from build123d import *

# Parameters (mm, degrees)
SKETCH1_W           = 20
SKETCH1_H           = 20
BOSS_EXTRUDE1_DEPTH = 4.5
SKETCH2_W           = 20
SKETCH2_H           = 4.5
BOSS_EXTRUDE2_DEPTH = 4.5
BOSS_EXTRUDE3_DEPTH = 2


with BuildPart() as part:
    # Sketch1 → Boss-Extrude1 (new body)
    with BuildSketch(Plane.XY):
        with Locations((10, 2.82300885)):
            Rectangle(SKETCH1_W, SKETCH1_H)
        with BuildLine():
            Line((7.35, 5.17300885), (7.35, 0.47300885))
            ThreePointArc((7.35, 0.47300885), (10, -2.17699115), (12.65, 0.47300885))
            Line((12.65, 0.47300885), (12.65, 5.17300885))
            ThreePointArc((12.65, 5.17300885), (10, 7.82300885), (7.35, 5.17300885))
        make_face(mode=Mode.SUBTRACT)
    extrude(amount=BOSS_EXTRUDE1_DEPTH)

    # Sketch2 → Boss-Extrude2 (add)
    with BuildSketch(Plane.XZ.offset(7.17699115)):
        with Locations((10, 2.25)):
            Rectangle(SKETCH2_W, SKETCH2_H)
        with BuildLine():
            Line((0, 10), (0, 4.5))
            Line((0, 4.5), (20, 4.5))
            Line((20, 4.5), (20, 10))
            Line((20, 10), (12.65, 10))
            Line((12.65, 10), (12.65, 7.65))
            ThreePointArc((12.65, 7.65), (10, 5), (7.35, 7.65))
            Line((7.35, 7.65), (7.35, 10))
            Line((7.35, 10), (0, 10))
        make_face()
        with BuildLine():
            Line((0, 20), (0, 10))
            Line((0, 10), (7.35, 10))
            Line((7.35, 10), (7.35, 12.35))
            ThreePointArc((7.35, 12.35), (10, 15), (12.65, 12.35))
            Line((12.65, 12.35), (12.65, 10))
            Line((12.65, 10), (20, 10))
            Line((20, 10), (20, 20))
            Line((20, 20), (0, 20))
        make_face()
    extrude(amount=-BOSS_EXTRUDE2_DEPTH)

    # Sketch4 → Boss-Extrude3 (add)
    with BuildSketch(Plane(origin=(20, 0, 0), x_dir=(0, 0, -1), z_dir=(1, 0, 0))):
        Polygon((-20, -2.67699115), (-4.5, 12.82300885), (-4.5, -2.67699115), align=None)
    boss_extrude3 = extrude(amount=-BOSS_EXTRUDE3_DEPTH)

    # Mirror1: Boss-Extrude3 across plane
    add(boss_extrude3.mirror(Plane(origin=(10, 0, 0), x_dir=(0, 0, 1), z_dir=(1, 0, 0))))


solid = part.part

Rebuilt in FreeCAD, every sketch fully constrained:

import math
import FreeCAD as App
import Part
import Sketcher

V = App.Vector
Q = App.Units.Quantity

doc = App.newDocument("Part")
body = doc.addObject("PartDesign::Body", "Body")

# Sketch on XY plane
sketch1 = body.newObject("Sketcher::SketchObject", "Sketch")
sketch1.AttachmentSupport = (doc.getObject("XY_Plane"), [""])
sketch1.MapMode = "FlatFace"
sketch1.addGeometry(Part.LineSegment(V(0, 12.8, 0), V(0, -7.2, 0)), False)
sketch1.addGeometry(Part.LineSegment(V(0, -7.2, 0), V(20, -7.2, 0)), False)
sketch1.addGeometry(Part.LineSegment(V(20, -7.2, 0), V(20, 12.8, 0)), False)
sketch1.addGeometry(Part.LineSegment(V(20, 12.8, 0), V(0, 12.8, 0)), False)
sketch1.addGeometry(Part.LineSegment(V(7.3, 0.5, 0), V(7.3, 5.2, 0)), False)
sketch1.addGeometry(Part.ArcOfCircle(Part.Circle(V(10, 5.2, 0), V(0, 0, 1), 2.6), math.radians(0), math.radians(180)), False)
sketch1.addGeometry(Part.LineSegment(V(12.7, 5.2, 0), V(12.7, 0.5, 0)), False)
sketch1.addGeometry(Part.ArcOfCircle(Part.Circle(V(10, 0.5, 0), V(0, 0, 1), 2.6), math.radians(180), math.radians(360)), False)
sketch1.addConstraint(Sketcher.Constraint("Coincident", 0, 2, 1, 1))
sketch1.addConstraint(Sketcher.Constraint("Coincident", 1, 2, 2, 1))
sketch1.addConstraint(Sketcher.Constraint("Coincident", 2, 2, 3, 1))
sketch1.addConstraint(Sketcher.Constraint("Coincident", 3, 2, 0, 1))
sketch1.addConstraint(Sketcher.Constraint("Tangent", 4, 2, 5, 2))
sketch1.addConstraint(Sketcher.Constraint("Tangent", 5, 1, 6, 1))
sketch1.addConstraint(Sketcher.Constraint("Tangent", 6, 2, 7, 2))
sketch1.addConstraint(Sketcher.Constraint("Tangent", 7, 1, 4, 1))
sketch1.addConstraint(Sketcher.Constraint("Vertical", 0))
sketch1.addConstraint(Sketcher.Constraint("Horizontal", 1))
sketch1.addConstraint(Sketcher.Constraint("Vertical", 2))
sketch1.addConstraint(Sketcher.Constraint("Horizontal", 3))
sketch1.addConstraint(Sketcher.Constraint("Vertical", 4))
sketch1.addConstraint(Sketcher.Constraint("Vertical", 6))
sketch1.addConstraint(Sketcher.Constraint("PointOnObject", 0, 2, -2))
sketch1.addConstraint(Sketcher.Constraint("Equal", 3, 0))
sketch1.addConstraint(Sketcher.Constraint("DistanceX", 1, 1, 1, 2, Q("20 mm")))
sketch1.addConstraint(Sketcher.Constraint("Radius", 5, Q("2.65 mm")))
sketch1.addConstraint(Sketcher.Constraint("DistanceY", 4, 1, 4, 2, Q("4.7 mm")))
sketch1.addConstraint(Sketcher.Constraint("DistanceX", -1, 1, 5, 3, Q("10 mm")))
sketch1.addConstraint(Sketcher.Constraint("DistanceY", 0, 2, 7, 3, Q("7.65 mm")))
sketch1.addConstraint(Sketcher.Constraint("DistanceY", -1, 1, 5, 3, Q("5.173009 mm")))
pad1 = body.newObject("PartDesign::Pad", "Pad")
pad1.Profile = sketch1
pad1.Length = 4.5

# Sketch on XZ plane
sketch2 = body.newObject("Sketcher::SketchObject", "Sketch001")
sketch2.AttachmentSupport = (doc.getObject("XZ_Plane"), [""])
sketch2.MapMode = "FlatFace"
sketch2.AttachmentOffset = App.Placement(V(0, 0, 7.176991), App.Rotation())
sketch2.addGeometry(Part.LineSegment(V(0, 0, 0), V(20, 0, 0)), False)
sketch2.addGeometry(Part.LineSegment(V(20, 0, 0), V(20, 20, 0)), False)
sketch2.addGeometry(Part.LineSegment(V(20, 20, 0), V(0, 20, 0)), False)
sketch2.addGeometry(Part.LineSegment(V(0, 20, 0), V(0, 0, 0)), False)
sketch2.addGeometry(Part.ArcOfCircle(Part.Circle(V(10, 12.3, 0), V(0, 0, 1), 2.6), math.radians(0), math.radians(180)), False)
sketch2.addGeometry(Part.LineSegment(V(12.7, 12.3, 0), V(12.7, 7.7, 0)), False)
sketch2.addGeometry(Part.ArcOfCircle(Part.Circle(V(10, 7.7, 0), V(0, 0, 1), 2.6), math.radians(180), math.radians(360)), False)
sketch2.addGeometry(Part.LineSegment(V(7.3, 7.7, 0), V(7.3, 12.3, 0)), False)
sketch2.addConstraint(Sketcher.Constraint("Coincident", 0, 2, 1, 1))
sketch2.addConstraint(Sketcher.Constraint("Coincident", 1, 2, 2, 1))
sketch2.addConstraint(Sketcher.Constraint("Coincident", 2, 2, 3, 1))
sketch2.addConstraint(Sketcher.Constraint("Coincident", 3, 2, 0, 1))
sketch2.addConstraint(Sketcher.Constraint("Tangent", 4, 1, 5, 1))
sketch2.addConstraint(Sketcher.Constraint("Tangent", 5, 2, 6, 2))
sketch2.addConstraint(Sketcher.Constraint("Tangent", 6, 1, 7, 1))
sketch2.addConstraint(Sketcher.Constraint("Tangent", 7, 2, 4, 2))
sketch2.addConstraint(Sketcher.Constraint("Horizontal", 0))
sketch2.addConstraint(Sketcher.Constraint("Vertical", 1))
sketch2.addConstraint(Sketcher.Constraint("Horizontal", 2))
sketch2.addConstraint(Sketcher.Constraint("Vertical", 3))
sketch2.addConstraint(Sketcher.Constraint("Vertical", 5))
sketch2.addConstraint(Sketcher.Constraint("Vertical", 7))
sketch2.addConstraint(Sketcher.Constraint("Coincident", 3, 2, -1, 1))
sketch2.addConstraint(Sketcher.Constraint("Equal", 2, 1))
sketch2.addConstraint(Sketcher.Constraint("DistanceX", 0, 1, 0, 2, Q("20 mm")))
sketch2.addConstraint(Sketcher.Constraint("Radius", 4, Q("2.65 mm")))
sketch2.addConstraint(Sketcher.Constraint("DistanceY", 5, 2, 5, 1, Q("4.7 mm")))
sketch2.addConstraint(Sketcher.Constraint("DistanceX", -1, 1, 4, 3, Q("10 mm")))
sketch2.addConstraint(Sketcher.Constraint("DistanceY", -1, 1, 4, 3, Q("12.35 mm")))
pad2 = body.newObject("PartDesign::Pad", "Pad001")
pad2.Profile = sketch2
pad2.Length = 4.5
pad2.Reversed = True

# Sketch on YZ plane
sketch3 = body.newObject("Sketcher::SketchObject", "Sketch002")
sketch3.AttachmentSupport = (doc.getObject("YZ_Plane"), [""])
sketch3.MapMode = "FlatFace"
sketch3.AttachmentOffset = App.Placement(V(0, 0, 20), App.Rotation())
sketch3.addGeometry(Part.LineSegment(V(13, 4, 0), V(-3, 20, 0)), False)
sketch3.addGeometry(Part.LineSegment(V(-3, 20, 0), V(-3, 4, 0)), False)
sketch3.addGeometry(Part.LineSegment(V(-3, 4, 0), V(13, 4, 0)), False)
sketch3.addConstraint(Sketcher.Constraint("Coincident", 0, 2, 1, 1))
sketch3.addConstraint(Sketcher.Constraint("Coincident", 1, 2, 2, 1))
sketch3.addConstraint(Sketcher.Constraint("Coincident", 2, 2, 0, 1))
sketch3.addConstraint(Sketcher.Constraint("Vertical", 1))
sketch3.addConstraint(Sketcher.Constraint("Horizontal", 2))
sketch3.addConstraint(Sketcher.Constraint("Equal", 2, 1))
sketch3.addConstraint(Sketcher.Constraint("DistanceX", 2, 1, 2, 2, Q("15.5 mm")))
sketch3.addConstraint(Sketcher.Constraint("DistanceY", -1, 1, 0, 2, Q("20 mm")))
sketch3.addConstraint(Sketcher.Constraint("DistanceX", 0, 2, -1, 1, Q("2.676991 mm")))
pad3 = body.newObject("PartDesign::Pad", "Pad002")
pad3.Profile = sketch3
pad3.Length = 2
pad3.Reversed = True
doc.recompute()

datumplane = body.newObject("PartDesign::Plane", "DatumPlane")
datumplane.AttachmentSupport = (doc.getObject("YZ_Plane"), [""])
datumplane.MapMode = "FlatFace"
datumplane.AttachmentOffset = App.Placement(V(0, 0, 10), App.Rotation())
mirrored = body.newObject("PartDesign::Mirrored", "Mirrored")
mirrored.Originals = [pad3]
mirrored.MirrorPlane = (datumplane, [""])
body.Tip = mirrored

doc.recompute()
